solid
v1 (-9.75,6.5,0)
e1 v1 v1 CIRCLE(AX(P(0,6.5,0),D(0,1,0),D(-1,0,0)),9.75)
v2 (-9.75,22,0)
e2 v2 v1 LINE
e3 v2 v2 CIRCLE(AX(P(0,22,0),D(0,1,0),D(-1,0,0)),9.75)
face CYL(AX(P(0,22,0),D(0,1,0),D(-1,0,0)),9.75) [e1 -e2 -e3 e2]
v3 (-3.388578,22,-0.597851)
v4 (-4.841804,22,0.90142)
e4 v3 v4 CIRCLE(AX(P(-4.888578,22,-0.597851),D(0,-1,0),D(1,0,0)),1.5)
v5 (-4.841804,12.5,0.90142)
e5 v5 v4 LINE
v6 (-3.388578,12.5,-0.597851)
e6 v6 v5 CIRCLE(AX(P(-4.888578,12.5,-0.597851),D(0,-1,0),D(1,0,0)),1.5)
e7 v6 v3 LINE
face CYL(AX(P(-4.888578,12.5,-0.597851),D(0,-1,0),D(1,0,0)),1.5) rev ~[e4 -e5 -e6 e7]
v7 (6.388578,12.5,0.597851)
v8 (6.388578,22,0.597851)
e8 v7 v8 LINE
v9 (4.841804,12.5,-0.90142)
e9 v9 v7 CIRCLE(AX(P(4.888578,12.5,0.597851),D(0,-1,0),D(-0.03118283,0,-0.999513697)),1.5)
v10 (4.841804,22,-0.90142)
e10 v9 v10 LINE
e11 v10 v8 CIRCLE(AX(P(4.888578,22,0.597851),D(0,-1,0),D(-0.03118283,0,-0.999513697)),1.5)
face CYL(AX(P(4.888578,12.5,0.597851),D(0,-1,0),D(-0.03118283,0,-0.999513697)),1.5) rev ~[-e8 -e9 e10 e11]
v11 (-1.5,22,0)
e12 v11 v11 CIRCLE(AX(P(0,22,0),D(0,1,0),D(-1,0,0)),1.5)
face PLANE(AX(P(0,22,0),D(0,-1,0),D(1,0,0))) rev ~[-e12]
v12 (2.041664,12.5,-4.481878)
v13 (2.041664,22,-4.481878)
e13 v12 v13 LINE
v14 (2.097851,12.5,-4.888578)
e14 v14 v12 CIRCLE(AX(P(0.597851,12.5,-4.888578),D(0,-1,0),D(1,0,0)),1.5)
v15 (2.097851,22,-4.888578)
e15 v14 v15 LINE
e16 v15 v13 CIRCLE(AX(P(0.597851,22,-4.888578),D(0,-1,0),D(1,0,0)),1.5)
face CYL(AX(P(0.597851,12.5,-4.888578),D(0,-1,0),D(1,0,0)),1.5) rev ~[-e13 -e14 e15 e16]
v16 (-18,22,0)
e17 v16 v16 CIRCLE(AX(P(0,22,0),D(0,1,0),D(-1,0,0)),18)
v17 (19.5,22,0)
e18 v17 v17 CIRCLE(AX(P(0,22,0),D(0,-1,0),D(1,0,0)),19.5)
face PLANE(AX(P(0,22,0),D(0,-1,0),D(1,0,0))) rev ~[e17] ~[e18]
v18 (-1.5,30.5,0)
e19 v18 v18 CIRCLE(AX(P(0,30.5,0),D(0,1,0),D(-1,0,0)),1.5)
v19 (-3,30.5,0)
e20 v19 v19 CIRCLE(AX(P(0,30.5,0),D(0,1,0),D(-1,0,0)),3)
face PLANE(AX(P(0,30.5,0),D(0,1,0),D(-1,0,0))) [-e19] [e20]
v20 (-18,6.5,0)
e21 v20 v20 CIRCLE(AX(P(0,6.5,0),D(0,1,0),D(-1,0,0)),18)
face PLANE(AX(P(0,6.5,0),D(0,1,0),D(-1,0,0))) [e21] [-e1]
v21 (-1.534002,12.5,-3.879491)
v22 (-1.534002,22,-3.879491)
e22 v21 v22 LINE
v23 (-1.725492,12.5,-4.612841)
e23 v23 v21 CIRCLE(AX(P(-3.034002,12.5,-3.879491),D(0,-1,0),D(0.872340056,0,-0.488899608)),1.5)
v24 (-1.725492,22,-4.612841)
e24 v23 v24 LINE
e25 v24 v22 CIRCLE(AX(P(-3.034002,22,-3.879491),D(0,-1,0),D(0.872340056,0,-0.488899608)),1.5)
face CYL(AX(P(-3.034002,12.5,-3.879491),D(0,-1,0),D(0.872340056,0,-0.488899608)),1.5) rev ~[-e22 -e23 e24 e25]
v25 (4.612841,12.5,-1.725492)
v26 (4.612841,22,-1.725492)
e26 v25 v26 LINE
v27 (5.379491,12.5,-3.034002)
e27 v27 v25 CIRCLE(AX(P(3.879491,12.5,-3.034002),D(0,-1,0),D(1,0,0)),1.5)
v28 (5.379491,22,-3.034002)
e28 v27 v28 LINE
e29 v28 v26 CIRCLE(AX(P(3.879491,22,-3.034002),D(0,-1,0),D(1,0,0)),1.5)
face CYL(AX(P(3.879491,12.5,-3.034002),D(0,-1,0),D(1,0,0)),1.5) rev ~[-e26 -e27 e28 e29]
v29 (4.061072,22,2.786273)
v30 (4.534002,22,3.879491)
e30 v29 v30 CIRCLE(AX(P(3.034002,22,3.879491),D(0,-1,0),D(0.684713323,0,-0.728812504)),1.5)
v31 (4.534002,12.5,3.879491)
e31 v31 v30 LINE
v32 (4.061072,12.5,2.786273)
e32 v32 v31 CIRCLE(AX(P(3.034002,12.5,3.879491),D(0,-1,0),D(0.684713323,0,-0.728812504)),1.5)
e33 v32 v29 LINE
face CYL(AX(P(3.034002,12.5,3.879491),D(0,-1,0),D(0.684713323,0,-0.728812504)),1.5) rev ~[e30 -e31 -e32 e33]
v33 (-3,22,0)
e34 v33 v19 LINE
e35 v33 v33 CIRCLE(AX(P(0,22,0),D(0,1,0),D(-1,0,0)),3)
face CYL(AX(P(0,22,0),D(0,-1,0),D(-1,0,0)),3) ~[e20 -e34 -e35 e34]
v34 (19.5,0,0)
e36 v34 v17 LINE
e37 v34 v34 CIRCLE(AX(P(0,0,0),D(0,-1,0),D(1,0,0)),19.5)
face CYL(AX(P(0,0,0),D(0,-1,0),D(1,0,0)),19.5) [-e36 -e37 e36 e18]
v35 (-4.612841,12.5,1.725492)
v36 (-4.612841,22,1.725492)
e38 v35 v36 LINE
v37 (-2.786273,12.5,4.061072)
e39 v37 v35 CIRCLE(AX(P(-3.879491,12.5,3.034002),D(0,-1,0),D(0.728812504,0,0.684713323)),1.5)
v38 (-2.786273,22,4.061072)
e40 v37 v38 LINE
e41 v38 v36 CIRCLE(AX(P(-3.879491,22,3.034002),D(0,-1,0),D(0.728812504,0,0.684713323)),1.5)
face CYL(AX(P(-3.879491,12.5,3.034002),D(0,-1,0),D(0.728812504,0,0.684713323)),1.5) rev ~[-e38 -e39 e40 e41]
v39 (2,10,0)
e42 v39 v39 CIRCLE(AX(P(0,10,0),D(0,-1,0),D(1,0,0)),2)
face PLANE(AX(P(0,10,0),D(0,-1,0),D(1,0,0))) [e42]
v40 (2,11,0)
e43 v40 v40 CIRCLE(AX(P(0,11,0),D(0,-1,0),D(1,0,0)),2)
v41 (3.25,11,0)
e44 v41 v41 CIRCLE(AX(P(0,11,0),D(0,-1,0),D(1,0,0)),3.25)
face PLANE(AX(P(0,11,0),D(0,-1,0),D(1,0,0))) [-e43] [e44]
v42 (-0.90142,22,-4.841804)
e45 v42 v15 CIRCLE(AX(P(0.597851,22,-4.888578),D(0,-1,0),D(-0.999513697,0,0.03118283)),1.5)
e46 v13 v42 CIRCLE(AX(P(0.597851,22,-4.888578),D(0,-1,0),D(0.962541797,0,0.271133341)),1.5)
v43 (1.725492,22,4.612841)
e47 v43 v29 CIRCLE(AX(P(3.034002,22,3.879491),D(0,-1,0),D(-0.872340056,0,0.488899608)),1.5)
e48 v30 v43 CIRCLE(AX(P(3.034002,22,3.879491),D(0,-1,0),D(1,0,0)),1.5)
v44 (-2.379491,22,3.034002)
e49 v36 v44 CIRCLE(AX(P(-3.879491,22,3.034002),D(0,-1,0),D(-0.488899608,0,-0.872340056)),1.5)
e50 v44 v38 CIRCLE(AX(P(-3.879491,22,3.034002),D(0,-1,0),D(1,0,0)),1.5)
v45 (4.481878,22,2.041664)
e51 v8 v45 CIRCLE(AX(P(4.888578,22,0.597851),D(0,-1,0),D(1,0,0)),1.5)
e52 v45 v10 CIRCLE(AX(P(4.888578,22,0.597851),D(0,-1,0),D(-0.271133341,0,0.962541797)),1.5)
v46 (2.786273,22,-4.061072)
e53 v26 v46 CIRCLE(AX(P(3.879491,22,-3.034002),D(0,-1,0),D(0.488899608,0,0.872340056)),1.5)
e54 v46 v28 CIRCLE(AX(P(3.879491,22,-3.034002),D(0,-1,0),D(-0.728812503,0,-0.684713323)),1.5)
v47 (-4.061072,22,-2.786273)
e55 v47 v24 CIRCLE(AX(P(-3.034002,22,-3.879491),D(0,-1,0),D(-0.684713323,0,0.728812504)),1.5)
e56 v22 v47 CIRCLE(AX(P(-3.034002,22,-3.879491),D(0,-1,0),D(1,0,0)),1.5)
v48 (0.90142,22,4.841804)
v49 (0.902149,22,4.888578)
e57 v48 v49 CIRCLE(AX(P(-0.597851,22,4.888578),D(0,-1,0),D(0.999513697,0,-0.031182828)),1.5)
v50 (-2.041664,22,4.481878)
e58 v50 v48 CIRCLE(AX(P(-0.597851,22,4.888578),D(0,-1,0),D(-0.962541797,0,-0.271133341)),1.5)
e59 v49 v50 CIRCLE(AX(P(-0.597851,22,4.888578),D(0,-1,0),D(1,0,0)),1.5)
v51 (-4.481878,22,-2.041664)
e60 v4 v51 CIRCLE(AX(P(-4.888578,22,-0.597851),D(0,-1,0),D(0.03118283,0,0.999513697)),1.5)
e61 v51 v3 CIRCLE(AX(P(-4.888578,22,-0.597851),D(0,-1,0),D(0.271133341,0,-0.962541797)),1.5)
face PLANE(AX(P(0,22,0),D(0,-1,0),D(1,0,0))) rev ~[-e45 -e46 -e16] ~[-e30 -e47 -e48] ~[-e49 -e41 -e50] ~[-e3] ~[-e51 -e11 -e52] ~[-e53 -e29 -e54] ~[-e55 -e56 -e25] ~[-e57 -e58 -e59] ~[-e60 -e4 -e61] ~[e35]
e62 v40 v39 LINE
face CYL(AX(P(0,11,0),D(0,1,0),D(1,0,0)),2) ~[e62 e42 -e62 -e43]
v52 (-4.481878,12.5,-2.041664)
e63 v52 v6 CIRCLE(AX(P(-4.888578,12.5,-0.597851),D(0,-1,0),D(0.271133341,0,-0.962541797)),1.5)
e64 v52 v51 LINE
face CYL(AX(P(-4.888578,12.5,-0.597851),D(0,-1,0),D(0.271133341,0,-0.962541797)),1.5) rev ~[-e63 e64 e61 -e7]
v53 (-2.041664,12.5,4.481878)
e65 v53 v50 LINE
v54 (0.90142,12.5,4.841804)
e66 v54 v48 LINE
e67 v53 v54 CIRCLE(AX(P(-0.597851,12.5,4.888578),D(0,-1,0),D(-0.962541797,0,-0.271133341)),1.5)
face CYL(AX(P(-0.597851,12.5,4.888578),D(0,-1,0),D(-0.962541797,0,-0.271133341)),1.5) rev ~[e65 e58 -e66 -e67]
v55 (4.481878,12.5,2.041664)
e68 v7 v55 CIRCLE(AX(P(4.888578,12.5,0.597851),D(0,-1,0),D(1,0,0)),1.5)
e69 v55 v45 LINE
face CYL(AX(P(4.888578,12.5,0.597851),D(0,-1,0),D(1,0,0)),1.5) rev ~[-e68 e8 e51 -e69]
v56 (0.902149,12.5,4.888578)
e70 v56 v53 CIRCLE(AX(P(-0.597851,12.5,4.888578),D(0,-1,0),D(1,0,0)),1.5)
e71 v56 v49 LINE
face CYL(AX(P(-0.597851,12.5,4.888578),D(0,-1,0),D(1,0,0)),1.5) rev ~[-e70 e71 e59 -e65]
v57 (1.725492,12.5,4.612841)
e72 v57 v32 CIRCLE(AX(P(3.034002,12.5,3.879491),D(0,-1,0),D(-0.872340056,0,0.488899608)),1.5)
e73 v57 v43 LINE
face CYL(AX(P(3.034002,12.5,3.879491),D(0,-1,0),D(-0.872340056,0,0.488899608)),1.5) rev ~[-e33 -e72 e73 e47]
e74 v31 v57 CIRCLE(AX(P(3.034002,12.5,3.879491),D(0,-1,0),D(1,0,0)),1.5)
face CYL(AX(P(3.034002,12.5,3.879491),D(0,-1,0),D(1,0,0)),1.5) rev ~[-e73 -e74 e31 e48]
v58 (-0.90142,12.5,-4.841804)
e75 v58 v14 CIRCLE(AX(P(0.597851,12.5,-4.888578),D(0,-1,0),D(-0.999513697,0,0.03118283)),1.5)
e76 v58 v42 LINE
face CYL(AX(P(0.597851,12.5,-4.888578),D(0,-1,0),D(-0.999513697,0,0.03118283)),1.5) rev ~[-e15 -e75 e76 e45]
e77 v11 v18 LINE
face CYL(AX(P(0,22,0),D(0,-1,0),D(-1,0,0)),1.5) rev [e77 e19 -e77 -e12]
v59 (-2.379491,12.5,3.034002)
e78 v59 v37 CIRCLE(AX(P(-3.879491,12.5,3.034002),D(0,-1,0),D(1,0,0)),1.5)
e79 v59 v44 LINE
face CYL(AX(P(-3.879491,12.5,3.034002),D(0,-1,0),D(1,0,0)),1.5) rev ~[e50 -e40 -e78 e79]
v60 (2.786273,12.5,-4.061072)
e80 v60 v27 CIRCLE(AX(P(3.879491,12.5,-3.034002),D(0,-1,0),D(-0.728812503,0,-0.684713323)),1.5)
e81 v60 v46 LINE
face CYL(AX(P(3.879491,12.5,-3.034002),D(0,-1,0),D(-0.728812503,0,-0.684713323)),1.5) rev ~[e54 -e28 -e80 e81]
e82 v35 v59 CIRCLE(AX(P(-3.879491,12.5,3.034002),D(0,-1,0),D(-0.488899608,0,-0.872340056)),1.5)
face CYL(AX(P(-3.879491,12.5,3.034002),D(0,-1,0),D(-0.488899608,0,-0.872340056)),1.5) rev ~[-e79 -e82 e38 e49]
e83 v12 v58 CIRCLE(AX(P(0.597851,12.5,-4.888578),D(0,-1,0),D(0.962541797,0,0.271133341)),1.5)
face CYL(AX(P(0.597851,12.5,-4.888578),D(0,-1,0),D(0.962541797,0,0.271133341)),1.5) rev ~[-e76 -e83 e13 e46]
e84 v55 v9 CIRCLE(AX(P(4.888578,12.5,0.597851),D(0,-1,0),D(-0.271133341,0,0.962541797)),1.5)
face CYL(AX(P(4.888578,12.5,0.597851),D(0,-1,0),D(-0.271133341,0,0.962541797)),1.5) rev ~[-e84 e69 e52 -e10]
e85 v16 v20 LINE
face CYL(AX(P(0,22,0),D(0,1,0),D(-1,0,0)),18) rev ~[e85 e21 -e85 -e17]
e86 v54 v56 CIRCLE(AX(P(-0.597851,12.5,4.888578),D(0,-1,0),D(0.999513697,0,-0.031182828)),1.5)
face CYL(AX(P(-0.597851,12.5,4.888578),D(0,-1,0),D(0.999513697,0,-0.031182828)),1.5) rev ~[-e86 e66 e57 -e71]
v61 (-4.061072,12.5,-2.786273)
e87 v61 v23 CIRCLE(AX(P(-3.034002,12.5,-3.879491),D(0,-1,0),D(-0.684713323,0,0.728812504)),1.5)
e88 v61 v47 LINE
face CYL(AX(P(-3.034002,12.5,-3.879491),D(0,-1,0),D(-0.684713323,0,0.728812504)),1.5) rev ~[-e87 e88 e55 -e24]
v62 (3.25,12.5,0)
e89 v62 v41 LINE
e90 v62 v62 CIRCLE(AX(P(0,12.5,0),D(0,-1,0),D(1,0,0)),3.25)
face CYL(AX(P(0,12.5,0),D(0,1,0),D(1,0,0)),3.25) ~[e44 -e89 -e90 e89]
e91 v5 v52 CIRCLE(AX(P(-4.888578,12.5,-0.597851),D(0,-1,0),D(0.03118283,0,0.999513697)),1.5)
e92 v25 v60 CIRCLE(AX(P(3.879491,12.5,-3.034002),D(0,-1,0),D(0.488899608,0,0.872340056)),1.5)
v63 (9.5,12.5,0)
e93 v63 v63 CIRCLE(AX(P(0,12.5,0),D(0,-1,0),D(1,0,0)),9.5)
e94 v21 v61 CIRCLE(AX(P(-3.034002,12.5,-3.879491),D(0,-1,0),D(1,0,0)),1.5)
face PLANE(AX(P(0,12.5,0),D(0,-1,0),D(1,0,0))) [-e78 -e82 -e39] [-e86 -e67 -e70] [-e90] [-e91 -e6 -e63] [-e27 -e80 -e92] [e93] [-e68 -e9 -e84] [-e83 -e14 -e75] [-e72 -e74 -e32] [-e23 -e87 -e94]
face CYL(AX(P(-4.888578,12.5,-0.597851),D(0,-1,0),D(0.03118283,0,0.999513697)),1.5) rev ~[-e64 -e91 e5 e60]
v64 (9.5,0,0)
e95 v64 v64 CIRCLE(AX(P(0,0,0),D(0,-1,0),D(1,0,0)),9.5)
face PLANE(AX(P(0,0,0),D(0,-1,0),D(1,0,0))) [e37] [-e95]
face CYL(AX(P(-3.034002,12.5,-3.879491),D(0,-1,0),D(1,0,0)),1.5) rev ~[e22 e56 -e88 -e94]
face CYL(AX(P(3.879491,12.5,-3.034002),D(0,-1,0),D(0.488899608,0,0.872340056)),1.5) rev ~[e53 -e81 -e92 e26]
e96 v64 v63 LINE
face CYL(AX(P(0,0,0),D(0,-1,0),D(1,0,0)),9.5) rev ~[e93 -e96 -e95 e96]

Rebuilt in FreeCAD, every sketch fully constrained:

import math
import FreeCAD as App
import Part
import Sketcher
from FreeCAD import Vector
Q = App.Units.Quantity

doc = App.newDocument("Part")
body = doc.addObject("PartDesign::Body", "Body")

# Sketch on XZ plane
sketch1 = doc.addObject("Sketcher::SketchObject", "Sketch")
body.addObject(sketch1)
sketch1.AttachmentSupport = (doc.XZ_Plane, [""])
sketch1.MapMode = "FlatFace"
sketch1.addGeometry(Part.Circle(Vector(0, 0, 0), Vector(0, 0, 1), 19.5), False)
sketch1.addConstraint([
    Sketcher.Constraint("Coincident", 0, 3, -1, 1),
    Sketcher.Constraint("Diameter", 0, Q("39 mm")),
])
pad1 = doc.addObject("PartDesign::Pad", "Pad")
body.addObject(pad1)
pad1.Profile = sketch1
pad1.Length = 22
pad1.Reversed = True

# Sketch on XZ plane
sketch2 = doc.addObject("Sketcher::SketchObject", "Sketch001")
body.addObject(sketch2)
sketch2.AttachmentSupport = (doc.XZ_Plane, [""])
sketch2.MapMode = "FlatFace"
sketch2.addGeometry(Part.Circle(Vector(0, 0, 0), Vector(0, 0, 1), 9.5), False)
sketch2.addConstraint([
    Sketcher.Constraint("Coincident", 0, 3, -1, 1),
    Sketcher.Constraint("Diameter", 0, Q("19 mm")),
])
pocket1 = doc.addObject("PartDesign::Pocket", "Pocket")
body.addObject(pocket1)
pocket1.Profile = sketch2
pocket1.Length = 12.5

# Sketch on XZ plane
sketch3 = doc.addObject("Sketcher::SketchObject", "Sketch002")
body.addObject(sketch3)
sketch3.AttachmentSupport = (doc.XZ_Plane, [""])
sketch3.MapMode = "FlatFace"
sketch3.AttachmentOffset = App.Placement(Vector(0, 0, -12.5), App.Rotation())
sketch3.addGeometry([
    Part.ArcOfCircle(Part.Circle(Vector(3.034002, 3.879491, 0), Vector(0, 0, 1), 1.5), math.radians(150.731718), math.radians(313.213066)),  # 0
    Part.ArcOfCircle(Part.Circle(Vector(3.034002, 3.879491, 0), Vector(0, 0, 1), 1.5), math.radians(-46.786934), math.radians(0)),  # 1
    Part.ArcOfCircle(Part.Circle(Vector(3.034002, 3.879491, 0), Vector(0, 0, 1), 1.5), math.radians(0), math.radians(150.731718)),  # 2
    Part.ArcOfCircle(Part.Circle(Vector(-0.597851, 4.888578, 0), Vector(0, 0, 1), 1.5), math.radians(-164.268282), math.radians(-1.786934)),  # 3
    Part.ArcOfCircle(Part.Circle(Vector(-0.597851, 4.888578, 0), Vector(0, 0, 1), 1.5), math.radians(-1.786934), math.radians(0)),  # 4
    Part.ArcOfCircle(Part.Circle(Vector(-0.597851, 4.888578, 0), Vector(0, 0, 1), 1.5), math.radians(0), math.radians(195.731718)),  # 5
    Part.ArcOfCircle(Part.Circle(Vector(-3.879491, 3.034002, 0), Vector(0, 0, 1), 1.5), math.radians(0), math.radians(43.213066)),  # 6
    Part.ArcOfCircle(Part.Circle(Vector(-3.879491, 3.034002, 0), Vector(0, 0, 1), 1.5), math.radians(43.213066), math.radians(240.731718)),  # 7
    Part.ArcOfCircle(Part.Circle(Vector(-3.879491, 3.034002, 0), Vector(0, 0, 1), 1.5), math.radians(-119.268282), math.radians(0)),  # 8
    Part.ArcOfCircle(Part.Circle(Vector(-4.888578, -0.597851, 0), Vector(0, 0, 1), 1.5), math.radians(0), math.radians(88.213066)),  # 9
    Part.ArcOfCircle(Part.Circle(Vector(-4.888578, -0.597851, 0), Vector(0, 0, 1), 1.5), math.radians(88.213066), math.radians(285.731718)),  # 10
    Part.ArcOfCircle(Part.Circle(Vector(-4.888578, -0.597851, 0), Vector(0, 0, 1), 1.5), math.radians(-74.268282), math.radians(0)),  # 11
    Part.ArcOfCircle(Part.Circle(Vector(-3.034002, -3.879491, 0), Vector(0, 0, 1), 1.5), math.radians(-29.268282), math.radians(0)),  # 12
    Part.ArcOfCircle(Part.Circle(Vector(-3.034002, -3.879491, 0), Vector(0, 0, 1), 1.5), math.radians(0), math.radians(133.213066)),  # 13
    Part.ArcOfCircle(Part.Circle(Vector(-3.034002, -3.879491, 0), Vector(0, 0, 1), 1.5), math.radians(133.213066), math.radians(330.731718)),  # 14
    Part.ArcOfCircle(Part.Circle(Vector(0.597851, -4.888578, 0), Vector(0, 0, 1), 1.5), math.radians(15.731718), math.radians(178.213066)),  # 15
    Part.ArcOfCircle(Part.Circle(Vector(0.597851, -4.888578, 0), Vector(0, 0, 1), 1.5), math.radians(178.213066), math.radians(360)),  # 16
    Part.ArcOfCircle(Part.Circle(Vector(0.597851, -4.888578, 0), Vector(0, 0, 1), 1.5), math.radians(0), math.radians(15.731718)),  # 17
    Part.ArcOfCircle(Part.Circle(Vector(3.879491, -3.034002, 0), Vector(0, 0, 1), 1.5), math.radians(60.731718), math.radians(223.213066)),  # 18
    Part.ArcOfCircle(Part.Circle(Vector(3.879491, -3.034002, 0), Vector(0, 0, 1), 1.5), math.radians(-136.786934), math.radians(0)),  # 19
    Part.ArcOfCircle(Part.Circle(Vector(3.879491, -3.034002, 0), Vector(0, 0, 1), 1.5), math.radians(0), math.radians(60.731718)),  # 20
    Part.ArcOfCircle(Part.Circle(Vector(4.888578, 0.597851, 0), Vector(0, 0, 1), 1.5), math.radians(105.731718), math.radians(268.213066)),  # 21
    Part.ArcOfCircle(Part.Circle(Vector(4.888578, 0.597851, 0), Vector(0, 0, 1), 1.5), math.radians(-91.786934), math.radians(0)),  # 22
    Part.ArcOfCircle(Part.Circle(Vector(4.888578, 0.597851, 0), Vector(0, 0, 1), 1.5), math.radians(0), math.radians(105.731718)),  # 23
], False)
sketch3.addConstraint([
    Sketcher.Constraint("Tangent", 0, 2, 1, 1),
    Sketcher.Constraint("Tangent", 1, 2, 2, 1),
    Sketcher.Constraint("Tangent", 2, 2, 0, 1),
    Sketcher.Constraint("Tangent", 3, 2, 4, 1),
    Sketcher.Constraint("Tangent", 4, 2, 5, 1),
    Sketcher.Constraint("Tangent", 5, 2, 3, 1),
    Sketcher.Constraint("Tangent", 6, 2, 7, 1),
    Sketcher.Constraint("Tangent", 7, 2, 8, 1),
    Sketcher.Constraint("Tangent", 8, 2, 6, 1),
    Sketcher.Constraint("Tangent", 9, 2, 10, 1),
    Sketcher.Constraint("Tangent", 10, 2, 11, 1),
    Sketcher.Constraint("Tangent", 11, 2, 9, 1),
    Sketcher.Constraint("Tangent", 12, 2, 13, 1),
    Sketcher.Constraint("Tangent", 13, 2, 14, 1),
    Sketcher.Constraint("Tangent", 14, 2, 12, 1),
    Sketcher.Constraint("Tangent", 15, 2, 16, 1),
    Sketcher.Constraint("Tangent", 16, 2, 17, 1),
    Sketcher.Constraint("Tangent", 17, 2, 15, 1),
    Sketcher.Constraint("Tangent", 18, 2, 19, 1),
    Sketcher.Constraint("Tangent", 19, 2, 20, 1),
    Sketcher.Constraint("Tangent", 20, 2, 18, 1),
    Sketcher.Constraint("Tangent", 21, 2, 22, 1),
    Sketcher.Constraint("Tangent", 22, 2, 23, 1),
    Sketcher.Constraint("Tangent", 23, 2, 21, 1),
    Sketcher.Constraint("Equal", 2, 3),
    Sketcher.Constraint("Equal", 5, 6),
    Sketcher.Constraint("Equal", 8, 9),
    Sketcher.Constraint("Equal", 11, 12),
    Sketcher.Constraint("Equal", 14, 15),
    Sketcher.Constraint("Equal", 17, 18),
    Sketcher.Constraint("Equal", 20, 21),
    Sketcher.Constraint("Symmetric", 0, 3, 12, 3, -1, 1),
    Sketcher.Constraint("Symmetric", 3, 3, 15, 3, -1, 1),
    Sketcher.Constraint("Symmetric", 6, 3, 18, 3, -1, 1),
    Sketcher.Constraint("Symmetric", 9, 3, 21, 3, -1, 1),
    Sketcher.Constraint("Horizontal", 2, 3, 1, 2),
    Sketcher.Constraint("Horizontal", 5, 3, 4, 2),
    Sketcher.Constraint("Horizontal", 7, 3, 8, 2),
    Sketcher.Constraint("Horizontal", 10, 3, 11, 2),
    Sketcher.Constraint("Horizontal", 14, 3, 12, 2),
    Sketcher.Constraint("Horizontal", 17, 3, 16, 2),
    Sketcher.Constraint("Horizontal", 20, 3, 19, 2),
    Sketcher.Constraint("Horizontal", 23, 3, 22, 2),
    Sketcher.Constraint("Radius", 0, Q("1.5 mm")),
    Sketcher.Constraint("DistanceY", 5, 2, 4, 3, Q("0.4067 mm")),
    Sketcher.Constraint("DistanceX", 9, 3, 10, 2, Q("0.4067 mm")),
    Sketcher.Constraint("DistanceY", 16, 2, 17, 2, Q("0.4067 mm")),
    Sketcher.Constraint("DistanceX", 23, 2, 21, 3, Q("0.4067 mm")),
    Sketcher.Constraint("DistanceY", -1, 1, 0, 3, Q("3.879491 mm")),
    Sketcher.Constraint("DistanceX", 3, 3, -1, 1, Q("0.597851 mm")),
    Sketcher.Constraint("DistanceY", -1, 1, 3, 3, Q("4.888578 mm")),
    Sketcher.Constraint("DistanceX", 6, 3, -1, 1, Q("3.879491 mm")),
    Sketcher.Constraint("DistanceX", 9, 3, -1, 1, Q("4.888578 mm")),
    Sketcher.Constraint("DistanceY", 9, 3, -1, 1, Q("0.597851 mm")),
    Sketcher.Constraint("DistanceY", -1, 1, 2, 2, Q("4.612841 mm")),
    Sketcher.Constraint("DistanceX", -1, 1, 3, 2, Q("0.90142 mm")),
    Sketcher.Constraint("DistanceX", 7, 2, -1, 1, Q("4.612841 mm")),
    Sketcher.Constraint("DistanceY", -1, 1, 9, 2, Q("0.90142 mm")),
    Sketcher.Constraint("DistanceY", 14, 2, -1, 1, Q("4.612841 mm")),
    Sketcher.Constraint("DistanceX", 15, 2, -1, 1, Q("0.90142 mm")),
    Sketcher.Constraint("DistanceX", -1, 1, 20, 2, Q("4.612841 mm")),
    Sketcher.Constraint("DistanceY", 21, 2, -1, 1, Q("0.90142 mm")),
    Sketcher.Constraint("DistanceY", 6, 3, 0, 3, Q("0.845489 mm")),
    Sketcher.Constraint("DistanceX", 6, 3, 12, 3, Q("0.845489 mm")),
    Sketcher.Constraint("DistanceX", 0, 3, 0, 2, Q("1.02707 mm")),
    Sketcher.Constraint("DistanceX", 6, 2, 5, 2, Q("0.744609 mm")),
    Sketcher.Constraint("DistanceY", 13, 2, 10, 2, Q("0.744609 mm")),
    Sketcher.Constraint("DistanceX", 17, 2, 18, 2, Q("0.744609 mm")),
])
pocket2 = doc.addObject("PartDesign::Pocket", "Pocket001")
body.addObject(pocket2)
pocket2.Profile = sketch3
pocket2.Length = 25.4

# Sketch on XZ plane
sketch4 = doc.addObject("Sketcher::SketchObject", "Sketch003")
body.addObject(sketch4)
sketch4.AttachmentSupport = (doc.XZ_Plane, [""])
sketch4.MapMode = "FlatFace"
sketch4.AttachmentOffset = App.Placement(Vector(0, 0, -22), App.Rotation())
sketch4.addGeometry([
    Part.Circle(Vector(0, 0, 0), Vector(0, 0, 1), 3),
    Part.Circle(Vector(0, 0, 0), Vector(0, 0, 1), 1.5),
], False)
sketch4.addConstraint([
    Sketcher.Constraint("Coincident", 0, 3, -1, 1),
    Sketcher.Constraint("Coincident", 1, 3, -1, 1),
    Sketcher.Constraint("Diameter", 0, Q("6 mm")),
    Sketcher.Constraint("Diameter", 1, Q("3 mm")),
])
pad2 = doc.addObject("PartDesign::Pad", "Pad001")
body.addObject(pad2)
pad2.Profile = sketch4
pad2.Length = 8.5
pad2.Reversed = True

# Sketch on XZ plane
sketch5 = doc.addObject("Sketcher::SketchObject", "Sketch004")
body.addObject(sketch5)
sketch5.AttachmentSupport = (doc.XZ_Plane, [""])
sketch5.MapMode = "FlatFace"
sketch5.AttachmentOffset = App.Placement(Vector(0, 0, -22), App.Rotation())
sketch5.addGeometry([
    Part.Circle(Vector(0, 0, 0), Vector(0, 0, 1), 18),
    Part.Circle(Vector(0, 0, 0), Vector(0, 0, 1), 9.75),
], False)
sketch5.addConstraint([
    Sketcher.Constraint("Coincident", 0, 3, -1, 1),
    Sketcher.Constraint("Coincident", 1, 3, -1, 1),
    Sketcher.Constraint("Diameter", 0, Q("36 mm")),
    Sketcher.Constraint("Diameter", 1, Q("19.5 mm")),
])
pocket3 = doc.addObject("PartDesign::Pocket", "Pocket002")
body.addObject(pocket3)
pocket3.Profile = sketch5
pocket3.Length = 15.5
pocket3.Reversed = True

# Sketch on XZ plane
sketch6 = doc.addObject("Sketcher::SketchObject", "Sketch005")
body.addObject(sketch6)
sketch6.AttachmentSupport = (doc.XZ_Plane, [""])
sketch6.MapMode = "FlatFace"
sketch6.AttachmentOffset = App.Placement(Vector(0, 0, -12.5), App.Rotation())
sketch6.addGeometry(Part.Circle(Vector(0, 0, 0), Vector(0, 0, 1), 3.25), False)
sketch6.addConstraint([
    Sketcher.Constraint("Coincident", 0, 3, -1, 1),
    Sketcher.Constraint("Diameter", 0, Q("6.5 mm")),
])
pad3 = doc.addObject("PartDesign::Pad", "Pad002")
body.addObject(pad3)
pad3.Profile = sketch6
pad3.Length = 1.5

# Sketch on XZ plane
sketch7 = doc.addObject("Sketcher::SketchObject", "Sketch006")
body.addObject(sketch7)
sketch7.AttachmentSupport = (doc.XZ_Plane, [""])
sketch7.MapMode = "FlatFace"
sketch7.AttachmentOffset = App.Placement(Vector(0, 0, -11), App.Rotation())
sketch7.addGeometry(Part.Circle(Vector(0, 0, 0), Vector(0, 0, 1), 2), False)
sketch7.addConstraint([
    Sketcher.Constraint("Coincident", 0, 3, -1, 1),
    Sketcher.Constraint("Diameter", 0, Q("4 mm")),
])
pad4 = doc.addObject("PartDesign::Pad", "Pad003")
body.addObject(pad4)
pad4.Profile = sketch7
pad4.Length = 1

doc.recompute()
